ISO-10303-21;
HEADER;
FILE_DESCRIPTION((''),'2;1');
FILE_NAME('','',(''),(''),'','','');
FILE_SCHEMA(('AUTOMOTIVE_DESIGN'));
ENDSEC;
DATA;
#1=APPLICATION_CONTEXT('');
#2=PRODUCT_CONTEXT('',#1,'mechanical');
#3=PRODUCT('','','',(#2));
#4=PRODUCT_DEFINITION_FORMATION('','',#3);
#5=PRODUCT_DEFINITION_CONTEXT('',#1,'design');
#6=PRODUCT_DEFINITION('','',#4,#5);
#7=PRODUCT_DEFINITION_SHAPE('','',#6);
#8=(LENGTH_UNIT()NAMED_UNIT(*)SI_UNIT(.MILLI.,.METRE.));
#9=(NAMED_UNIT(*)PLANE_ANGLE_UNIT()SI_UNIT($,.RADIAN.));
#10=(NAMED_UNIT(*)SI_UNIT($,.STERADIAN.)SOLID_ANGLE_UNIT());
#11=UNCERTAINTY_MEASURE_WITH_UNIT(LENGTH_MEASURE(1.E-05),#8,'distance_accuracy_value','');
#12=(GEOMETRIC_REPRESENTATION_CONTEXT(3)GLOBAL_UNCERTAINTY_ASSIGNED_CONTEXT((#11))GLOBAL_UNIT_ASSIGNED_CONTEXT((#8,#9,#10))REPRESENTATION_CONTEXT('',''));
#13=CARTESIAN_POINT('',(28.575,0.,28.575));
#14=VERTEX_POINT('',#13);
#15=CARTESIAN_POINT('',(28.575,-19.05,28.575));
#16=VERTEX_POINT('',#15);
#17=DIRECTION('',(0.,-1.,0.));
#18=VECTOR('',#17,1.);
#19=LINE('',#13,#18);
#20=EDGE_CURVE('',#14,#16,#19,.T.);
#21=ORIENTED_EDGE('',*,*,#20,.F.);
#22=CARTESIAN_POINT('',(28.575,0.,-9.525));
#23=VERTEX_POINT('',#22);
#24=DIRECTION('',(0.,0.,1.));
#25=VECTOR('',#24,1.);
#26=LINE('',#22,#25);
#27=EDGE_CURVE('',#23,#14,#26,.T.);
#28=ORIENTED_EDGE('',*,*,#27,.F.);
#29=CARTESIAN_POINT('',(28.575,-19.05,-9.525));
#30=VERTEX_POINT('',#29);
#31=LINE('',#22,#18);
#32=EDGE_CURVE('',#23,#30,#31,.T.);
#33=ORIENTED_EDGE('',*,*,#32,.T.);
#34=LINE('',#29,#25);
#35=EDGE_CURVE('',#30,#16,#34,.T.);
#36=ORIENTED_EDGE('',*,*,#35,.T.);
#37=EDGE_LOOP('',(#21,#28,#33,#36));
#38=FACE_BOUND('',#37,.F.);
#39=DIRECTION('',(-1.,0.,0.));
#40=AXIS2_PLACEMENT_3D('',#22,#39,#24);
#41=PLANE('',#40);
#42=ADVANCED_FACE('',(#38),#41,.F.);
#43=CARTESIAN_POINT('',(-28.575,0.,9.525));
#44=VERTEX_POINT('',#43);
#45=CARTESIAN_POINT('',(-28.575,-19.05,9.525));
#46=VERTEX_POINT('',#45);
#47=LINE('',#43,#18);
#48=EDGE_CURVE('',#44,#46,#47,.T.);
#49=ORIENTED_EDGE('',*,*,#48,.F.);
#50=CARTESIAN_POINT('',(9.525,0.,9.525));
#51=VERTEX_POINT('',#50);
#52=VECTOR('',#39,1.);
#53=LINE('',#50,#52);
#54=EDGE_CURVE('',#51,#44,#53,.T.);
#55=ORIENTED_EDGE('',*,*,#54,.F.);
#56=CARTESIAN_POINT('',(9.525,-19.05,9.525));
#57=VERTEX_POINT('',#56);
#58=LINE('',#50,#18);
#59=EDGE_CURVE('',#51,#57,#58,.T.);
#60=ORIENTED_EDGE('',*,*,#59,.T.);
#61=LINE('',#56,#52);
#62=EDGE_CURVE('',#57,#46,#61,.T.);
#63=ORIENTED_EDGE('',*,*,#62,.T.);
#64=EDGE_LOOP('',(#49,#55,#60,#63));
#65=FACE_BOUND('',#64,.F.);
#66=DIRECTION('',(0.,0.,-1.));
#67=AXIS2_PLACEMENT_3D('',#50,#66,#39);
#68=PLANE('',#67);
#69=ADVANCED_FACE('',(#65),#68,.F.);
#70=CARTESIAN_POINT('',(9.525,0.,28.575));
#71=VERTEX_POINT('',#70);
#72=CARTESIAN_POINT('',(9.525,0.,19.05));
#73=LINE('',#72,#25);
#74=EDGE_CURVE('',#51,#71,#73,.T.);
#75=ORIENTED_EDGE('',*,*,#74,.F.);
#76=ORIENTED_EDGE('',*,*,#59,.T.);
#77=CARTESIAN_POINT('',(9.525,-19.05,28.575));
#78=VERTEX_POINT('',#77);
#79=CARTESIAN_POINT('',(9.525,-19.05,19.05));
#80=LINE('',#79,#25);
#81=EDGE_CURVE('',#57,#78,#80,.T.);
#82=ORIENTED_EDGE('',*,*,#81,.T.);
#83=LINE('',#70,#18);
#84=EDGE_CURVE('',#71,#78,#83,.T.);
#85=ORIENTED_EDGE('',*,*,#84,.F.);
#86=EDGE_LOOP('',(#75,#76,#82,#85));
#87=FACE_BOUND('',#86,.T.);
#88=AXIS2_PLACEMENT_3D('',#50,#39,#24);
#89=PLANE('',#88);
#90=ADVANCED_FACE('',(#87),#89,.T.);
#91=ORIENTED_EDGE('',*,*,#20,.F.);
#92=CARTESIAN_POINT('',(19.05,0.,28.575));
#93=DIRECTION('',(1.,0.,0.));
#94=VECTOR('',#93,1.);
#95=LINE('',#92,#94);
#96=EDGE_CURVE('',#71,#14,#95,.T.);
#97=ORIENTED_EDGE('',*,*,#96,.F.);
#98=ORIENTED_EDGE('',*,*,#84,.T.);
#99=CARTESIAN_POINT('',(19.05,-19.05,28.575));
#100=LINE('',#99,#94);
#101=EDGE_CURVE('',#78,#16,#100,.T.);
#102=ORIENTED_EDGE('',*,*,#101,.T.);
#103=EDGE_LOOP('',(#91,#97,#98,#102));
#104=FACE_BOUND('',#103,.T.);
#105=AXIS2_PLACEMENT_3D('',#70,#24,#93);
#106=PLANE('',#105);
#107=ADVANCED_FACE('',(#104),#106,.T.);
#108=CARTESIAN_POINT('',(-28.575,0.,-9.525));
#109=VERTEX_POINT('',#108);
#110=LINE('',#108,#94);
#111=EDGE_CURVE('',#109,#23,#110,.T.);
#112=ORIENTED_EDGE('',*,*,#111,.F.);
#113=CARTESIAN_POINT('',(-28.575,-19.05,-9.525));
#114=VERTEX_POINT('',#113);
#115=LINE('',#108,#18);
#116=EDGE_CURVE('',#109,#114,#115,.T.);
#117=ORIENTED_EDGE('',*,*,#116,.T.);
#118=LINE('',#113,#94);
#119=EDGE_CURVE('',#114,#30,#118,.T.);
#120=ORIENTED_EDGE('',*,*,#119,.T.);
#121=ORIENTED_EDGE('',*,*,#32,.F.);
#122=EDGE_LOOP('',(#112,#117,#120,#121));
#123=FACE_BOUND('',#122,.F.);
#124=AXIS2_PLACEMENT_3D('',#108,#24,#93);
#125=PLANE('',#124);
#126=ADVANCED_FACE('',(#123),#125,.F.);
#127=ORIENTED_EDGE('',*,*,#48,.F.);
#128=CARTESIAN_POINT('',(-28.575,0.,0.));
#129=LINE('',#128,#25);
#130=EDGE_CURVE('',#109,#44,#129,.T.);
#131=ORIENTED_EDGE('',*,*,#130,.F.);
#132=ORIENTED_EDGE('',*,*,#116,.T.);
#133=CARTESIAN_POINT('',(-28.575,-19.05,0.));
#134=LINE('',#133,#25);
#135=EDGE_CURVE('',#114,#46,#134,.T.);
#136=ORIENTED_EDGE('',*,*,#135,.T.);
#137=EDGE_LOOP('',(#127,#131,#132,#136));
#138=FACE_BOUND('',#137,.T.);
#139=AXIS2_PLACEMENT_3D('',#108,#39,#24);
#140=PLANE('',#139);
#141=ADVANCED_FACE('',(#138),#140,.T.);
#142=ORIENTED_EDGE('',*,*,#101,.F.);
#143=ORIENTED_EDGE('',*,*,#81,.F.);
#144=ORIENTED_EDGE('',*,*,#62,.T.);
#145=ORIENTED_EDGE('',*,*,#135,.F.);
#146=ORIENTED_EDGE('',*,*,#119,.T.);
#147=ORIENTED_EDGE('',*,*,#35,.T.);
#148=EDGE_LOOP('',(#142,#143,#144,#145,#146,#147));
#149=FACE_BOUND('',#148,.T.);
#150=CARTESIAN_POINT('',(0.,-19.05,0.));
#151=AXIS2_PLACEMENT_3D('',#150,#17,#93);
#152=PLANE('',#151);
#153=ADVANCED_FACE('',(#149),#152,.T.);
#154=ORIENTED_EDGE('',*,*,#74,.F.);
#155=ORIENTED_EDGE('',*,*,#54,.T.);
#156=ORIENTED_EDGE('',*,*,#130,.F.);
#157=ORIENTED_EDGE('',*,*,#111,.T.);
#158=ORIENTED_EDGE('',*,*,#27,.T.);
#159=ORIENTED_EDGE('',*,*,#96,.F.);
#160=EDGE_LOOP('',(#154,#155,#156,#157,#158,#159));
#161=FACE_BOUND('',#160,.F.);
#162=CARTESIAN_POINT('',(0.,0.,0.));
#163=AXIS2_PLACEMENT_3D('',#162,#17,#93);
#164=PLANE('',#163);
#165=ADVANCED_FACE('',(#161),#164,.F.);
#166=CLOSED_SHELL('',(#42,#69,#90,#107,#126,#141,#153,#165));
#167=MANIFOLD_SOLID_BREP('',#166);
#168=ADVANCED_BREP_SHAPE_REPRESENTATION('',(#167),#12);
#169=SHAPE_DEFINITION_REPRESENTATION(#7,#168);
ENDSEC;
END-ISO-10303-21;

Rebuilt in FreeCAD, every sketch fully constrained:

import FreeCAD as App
import Part
import Sketcher

V = App.Vector
Q = App.Units.Quantity


def add_polygon(sketch, points):
    """Adds a closed chain of lines whose ends are joined by coincident constraints."""
    first, n = sketch.GeometryCount, len(points)
    for a, b in zip(points, points[1:] + points[:1]):
        sketch.addGeometry(Part.LineSegment(App.Vector(*a, 0), App.Vector(*b, 0)), False)
    for i in range(n):
        sketch.addConstraint(Sketcher.Constraint("Coincident", first + i, 2, first + (i + 1) % n, 1))

doc = App.newDocument("Part")
body = doc.addObject("PartDesign::Body", "Body")

# Sketch on XZ plane
sketch1 = body.newObject("Sketcher::SketchObject", "Sketch")
sketch1.AttachmentSupport = (doc.getObject("XZ_Plane"), [""])
sketch1.MapMode = "FlatFace"
add_polygon(sketch1, [(29, -10), (29, 29), (10, 29), (10, 10), (-29, 10), (-29, -10)])  # lines 0-5
sketch1.addConstraint(Sketcher.Constraint("Vertical", 0))
sketch1.addConstraint(Sketcher.Constraint("Horizontal", 1))
sketch1.addConstraint(Sketcher.Constraint("Vertical", 2))
sketch1.addConstraint(Sketcher.Constraint("Horizontal", 3))
sketch1.addConstraint(Sketcher.Constraint("Vertical", 4))
sketch1.addConstraint(Sketcher.Constraint("Horizontal", 5))
sketch1.addConstraint(Sketcher.Constraint("Symmetric", 3, 2, 5, 2, -1, 1))
sketch1.addConstraint(Sketcher.Constraint("Equal", 3, 0))
sketch1.addConstraint(Sketcher.Constraint("Equal", 1, 2))
sketch1.addConstraint(Sketcher.Constraint("Equal", 2, 4))
sketch1.addConstraint(Sketcher.Constraint("DistanceX", 3, 2, 3, 1, Q("1.5 in")))
pad1 = body.newObject("PartDesign::Pad", "Pad")
pad1.Profile = sketch1
pad1.Length = Q("0.75 in")

doc.recompute()
